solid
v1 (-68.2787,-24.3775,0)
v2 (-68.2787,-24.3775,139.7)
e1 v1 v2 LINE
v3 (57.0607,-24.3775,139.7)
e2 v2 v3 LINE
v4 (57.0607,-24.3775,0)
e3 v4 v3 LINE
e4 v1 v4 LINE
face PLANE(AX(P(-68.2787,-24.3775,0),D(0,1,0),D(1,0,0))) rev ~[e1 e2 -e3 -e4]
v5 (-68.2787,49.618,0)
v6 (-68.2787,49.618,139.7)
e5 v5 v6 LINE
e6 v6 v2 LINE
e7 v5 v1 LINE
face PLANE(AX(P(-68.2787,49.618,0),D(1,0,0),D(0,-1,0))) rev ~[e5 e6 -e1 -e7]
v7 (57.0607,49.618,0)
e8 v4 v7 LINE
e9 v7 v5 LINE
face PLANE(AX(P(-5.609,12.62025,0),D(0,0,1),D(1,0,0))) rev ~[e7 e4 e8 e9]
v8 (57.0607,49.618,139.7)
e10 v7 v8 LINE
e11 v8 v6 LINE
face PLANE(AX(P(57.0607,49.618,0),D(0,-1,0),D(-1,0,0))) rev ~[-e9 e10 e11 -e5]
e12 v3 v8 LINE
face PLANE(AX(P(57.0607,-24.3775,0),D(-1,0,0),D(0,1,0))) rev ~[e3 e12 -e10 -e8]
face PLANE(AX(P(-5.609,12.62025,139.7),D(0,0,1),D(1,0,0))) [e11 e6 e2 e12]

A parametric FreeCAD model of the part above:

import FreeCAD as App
import Part
import Sketcher
from FreeCAD import Vector
Q = App.Units.Quantity

doc = App.newDocument("Part")
body = doc.addObject("PartDesign::Body", "Body")

# Sketch on XY plane
sketch1 = doc.addObject("Sketcher::SketchObject", "Sketch")
body.addObject(sketch1)
sketch1.AttachmentSupport = (doc.XY_Plane, [""])
sketch1.MapMode = "FlatFace"
sketch1.addGeometry(Part.LineSegment(Vector(-68, 50, 0), Vector(-68, -24, 0)), False)
sketch1.addGeometry(Part.LineSegment(Vector(-68, -24, 0), Vector(57, -24, 0)), False)
sketch1.addGeometry(Part.LineSegment(Vector(57, -24, 0), Vector(57, 50, 0)), False)
sketch1.addGeometry(Part.LineSegment(Vector(57, 50, 0), Vector(-68, 50, 0)), False)
sketch1.addConstraint(Sketcher.Constraint("Coincident", 0, 2, 1, 1))
sketch1.addConstraint(Sketcher.Constraint("Coincident", 1, 2, 2, 1))
sketch1.addConstraint(Sketcher.Constraint("Coincident", 2, 2, 3, 1))
sketch1.addConstraint(Sketcher.Constraint("Coincident", 3, 2, 0, 1))
sketch1.addConstraint(Sketcher.Constraint("Vertical", 0))
sketch1.addConstraint(Sketcher.Constraint("Horizontal", 1))
sketch1.addConstraint(Sketcher.Constraint("Vertical", 2))
sketch1.addConstraint(Sketcher.Constraint("Horizontal", 3))
sketch1.addConstraint(Sketcher.Constraint("DistanceY", 0, 2, 0, 1, Q("2.9132 in")))
sketch1.addConstraint(Sketcher.Constraint("DistanceX", 1, 1, 1, 2, Q("125.3394 mm")))
sketch1.addConstraint(Sketcher.Constraint("DistanceX", 0, 2, -1, 1, Q("68.2787 mm")))
sketch1.addConstraint(Sketcher.Constraint("DistanceY", 0, 2, -1, 1, Q("24.3775 mm")))
pad1 = doc.addObject("PartDesign::Pad", "Pad")
body.addObject(pad1)
pad1.Profile = sketch1
pad1.Length = Q("5.5 in")

doc.recompute()
